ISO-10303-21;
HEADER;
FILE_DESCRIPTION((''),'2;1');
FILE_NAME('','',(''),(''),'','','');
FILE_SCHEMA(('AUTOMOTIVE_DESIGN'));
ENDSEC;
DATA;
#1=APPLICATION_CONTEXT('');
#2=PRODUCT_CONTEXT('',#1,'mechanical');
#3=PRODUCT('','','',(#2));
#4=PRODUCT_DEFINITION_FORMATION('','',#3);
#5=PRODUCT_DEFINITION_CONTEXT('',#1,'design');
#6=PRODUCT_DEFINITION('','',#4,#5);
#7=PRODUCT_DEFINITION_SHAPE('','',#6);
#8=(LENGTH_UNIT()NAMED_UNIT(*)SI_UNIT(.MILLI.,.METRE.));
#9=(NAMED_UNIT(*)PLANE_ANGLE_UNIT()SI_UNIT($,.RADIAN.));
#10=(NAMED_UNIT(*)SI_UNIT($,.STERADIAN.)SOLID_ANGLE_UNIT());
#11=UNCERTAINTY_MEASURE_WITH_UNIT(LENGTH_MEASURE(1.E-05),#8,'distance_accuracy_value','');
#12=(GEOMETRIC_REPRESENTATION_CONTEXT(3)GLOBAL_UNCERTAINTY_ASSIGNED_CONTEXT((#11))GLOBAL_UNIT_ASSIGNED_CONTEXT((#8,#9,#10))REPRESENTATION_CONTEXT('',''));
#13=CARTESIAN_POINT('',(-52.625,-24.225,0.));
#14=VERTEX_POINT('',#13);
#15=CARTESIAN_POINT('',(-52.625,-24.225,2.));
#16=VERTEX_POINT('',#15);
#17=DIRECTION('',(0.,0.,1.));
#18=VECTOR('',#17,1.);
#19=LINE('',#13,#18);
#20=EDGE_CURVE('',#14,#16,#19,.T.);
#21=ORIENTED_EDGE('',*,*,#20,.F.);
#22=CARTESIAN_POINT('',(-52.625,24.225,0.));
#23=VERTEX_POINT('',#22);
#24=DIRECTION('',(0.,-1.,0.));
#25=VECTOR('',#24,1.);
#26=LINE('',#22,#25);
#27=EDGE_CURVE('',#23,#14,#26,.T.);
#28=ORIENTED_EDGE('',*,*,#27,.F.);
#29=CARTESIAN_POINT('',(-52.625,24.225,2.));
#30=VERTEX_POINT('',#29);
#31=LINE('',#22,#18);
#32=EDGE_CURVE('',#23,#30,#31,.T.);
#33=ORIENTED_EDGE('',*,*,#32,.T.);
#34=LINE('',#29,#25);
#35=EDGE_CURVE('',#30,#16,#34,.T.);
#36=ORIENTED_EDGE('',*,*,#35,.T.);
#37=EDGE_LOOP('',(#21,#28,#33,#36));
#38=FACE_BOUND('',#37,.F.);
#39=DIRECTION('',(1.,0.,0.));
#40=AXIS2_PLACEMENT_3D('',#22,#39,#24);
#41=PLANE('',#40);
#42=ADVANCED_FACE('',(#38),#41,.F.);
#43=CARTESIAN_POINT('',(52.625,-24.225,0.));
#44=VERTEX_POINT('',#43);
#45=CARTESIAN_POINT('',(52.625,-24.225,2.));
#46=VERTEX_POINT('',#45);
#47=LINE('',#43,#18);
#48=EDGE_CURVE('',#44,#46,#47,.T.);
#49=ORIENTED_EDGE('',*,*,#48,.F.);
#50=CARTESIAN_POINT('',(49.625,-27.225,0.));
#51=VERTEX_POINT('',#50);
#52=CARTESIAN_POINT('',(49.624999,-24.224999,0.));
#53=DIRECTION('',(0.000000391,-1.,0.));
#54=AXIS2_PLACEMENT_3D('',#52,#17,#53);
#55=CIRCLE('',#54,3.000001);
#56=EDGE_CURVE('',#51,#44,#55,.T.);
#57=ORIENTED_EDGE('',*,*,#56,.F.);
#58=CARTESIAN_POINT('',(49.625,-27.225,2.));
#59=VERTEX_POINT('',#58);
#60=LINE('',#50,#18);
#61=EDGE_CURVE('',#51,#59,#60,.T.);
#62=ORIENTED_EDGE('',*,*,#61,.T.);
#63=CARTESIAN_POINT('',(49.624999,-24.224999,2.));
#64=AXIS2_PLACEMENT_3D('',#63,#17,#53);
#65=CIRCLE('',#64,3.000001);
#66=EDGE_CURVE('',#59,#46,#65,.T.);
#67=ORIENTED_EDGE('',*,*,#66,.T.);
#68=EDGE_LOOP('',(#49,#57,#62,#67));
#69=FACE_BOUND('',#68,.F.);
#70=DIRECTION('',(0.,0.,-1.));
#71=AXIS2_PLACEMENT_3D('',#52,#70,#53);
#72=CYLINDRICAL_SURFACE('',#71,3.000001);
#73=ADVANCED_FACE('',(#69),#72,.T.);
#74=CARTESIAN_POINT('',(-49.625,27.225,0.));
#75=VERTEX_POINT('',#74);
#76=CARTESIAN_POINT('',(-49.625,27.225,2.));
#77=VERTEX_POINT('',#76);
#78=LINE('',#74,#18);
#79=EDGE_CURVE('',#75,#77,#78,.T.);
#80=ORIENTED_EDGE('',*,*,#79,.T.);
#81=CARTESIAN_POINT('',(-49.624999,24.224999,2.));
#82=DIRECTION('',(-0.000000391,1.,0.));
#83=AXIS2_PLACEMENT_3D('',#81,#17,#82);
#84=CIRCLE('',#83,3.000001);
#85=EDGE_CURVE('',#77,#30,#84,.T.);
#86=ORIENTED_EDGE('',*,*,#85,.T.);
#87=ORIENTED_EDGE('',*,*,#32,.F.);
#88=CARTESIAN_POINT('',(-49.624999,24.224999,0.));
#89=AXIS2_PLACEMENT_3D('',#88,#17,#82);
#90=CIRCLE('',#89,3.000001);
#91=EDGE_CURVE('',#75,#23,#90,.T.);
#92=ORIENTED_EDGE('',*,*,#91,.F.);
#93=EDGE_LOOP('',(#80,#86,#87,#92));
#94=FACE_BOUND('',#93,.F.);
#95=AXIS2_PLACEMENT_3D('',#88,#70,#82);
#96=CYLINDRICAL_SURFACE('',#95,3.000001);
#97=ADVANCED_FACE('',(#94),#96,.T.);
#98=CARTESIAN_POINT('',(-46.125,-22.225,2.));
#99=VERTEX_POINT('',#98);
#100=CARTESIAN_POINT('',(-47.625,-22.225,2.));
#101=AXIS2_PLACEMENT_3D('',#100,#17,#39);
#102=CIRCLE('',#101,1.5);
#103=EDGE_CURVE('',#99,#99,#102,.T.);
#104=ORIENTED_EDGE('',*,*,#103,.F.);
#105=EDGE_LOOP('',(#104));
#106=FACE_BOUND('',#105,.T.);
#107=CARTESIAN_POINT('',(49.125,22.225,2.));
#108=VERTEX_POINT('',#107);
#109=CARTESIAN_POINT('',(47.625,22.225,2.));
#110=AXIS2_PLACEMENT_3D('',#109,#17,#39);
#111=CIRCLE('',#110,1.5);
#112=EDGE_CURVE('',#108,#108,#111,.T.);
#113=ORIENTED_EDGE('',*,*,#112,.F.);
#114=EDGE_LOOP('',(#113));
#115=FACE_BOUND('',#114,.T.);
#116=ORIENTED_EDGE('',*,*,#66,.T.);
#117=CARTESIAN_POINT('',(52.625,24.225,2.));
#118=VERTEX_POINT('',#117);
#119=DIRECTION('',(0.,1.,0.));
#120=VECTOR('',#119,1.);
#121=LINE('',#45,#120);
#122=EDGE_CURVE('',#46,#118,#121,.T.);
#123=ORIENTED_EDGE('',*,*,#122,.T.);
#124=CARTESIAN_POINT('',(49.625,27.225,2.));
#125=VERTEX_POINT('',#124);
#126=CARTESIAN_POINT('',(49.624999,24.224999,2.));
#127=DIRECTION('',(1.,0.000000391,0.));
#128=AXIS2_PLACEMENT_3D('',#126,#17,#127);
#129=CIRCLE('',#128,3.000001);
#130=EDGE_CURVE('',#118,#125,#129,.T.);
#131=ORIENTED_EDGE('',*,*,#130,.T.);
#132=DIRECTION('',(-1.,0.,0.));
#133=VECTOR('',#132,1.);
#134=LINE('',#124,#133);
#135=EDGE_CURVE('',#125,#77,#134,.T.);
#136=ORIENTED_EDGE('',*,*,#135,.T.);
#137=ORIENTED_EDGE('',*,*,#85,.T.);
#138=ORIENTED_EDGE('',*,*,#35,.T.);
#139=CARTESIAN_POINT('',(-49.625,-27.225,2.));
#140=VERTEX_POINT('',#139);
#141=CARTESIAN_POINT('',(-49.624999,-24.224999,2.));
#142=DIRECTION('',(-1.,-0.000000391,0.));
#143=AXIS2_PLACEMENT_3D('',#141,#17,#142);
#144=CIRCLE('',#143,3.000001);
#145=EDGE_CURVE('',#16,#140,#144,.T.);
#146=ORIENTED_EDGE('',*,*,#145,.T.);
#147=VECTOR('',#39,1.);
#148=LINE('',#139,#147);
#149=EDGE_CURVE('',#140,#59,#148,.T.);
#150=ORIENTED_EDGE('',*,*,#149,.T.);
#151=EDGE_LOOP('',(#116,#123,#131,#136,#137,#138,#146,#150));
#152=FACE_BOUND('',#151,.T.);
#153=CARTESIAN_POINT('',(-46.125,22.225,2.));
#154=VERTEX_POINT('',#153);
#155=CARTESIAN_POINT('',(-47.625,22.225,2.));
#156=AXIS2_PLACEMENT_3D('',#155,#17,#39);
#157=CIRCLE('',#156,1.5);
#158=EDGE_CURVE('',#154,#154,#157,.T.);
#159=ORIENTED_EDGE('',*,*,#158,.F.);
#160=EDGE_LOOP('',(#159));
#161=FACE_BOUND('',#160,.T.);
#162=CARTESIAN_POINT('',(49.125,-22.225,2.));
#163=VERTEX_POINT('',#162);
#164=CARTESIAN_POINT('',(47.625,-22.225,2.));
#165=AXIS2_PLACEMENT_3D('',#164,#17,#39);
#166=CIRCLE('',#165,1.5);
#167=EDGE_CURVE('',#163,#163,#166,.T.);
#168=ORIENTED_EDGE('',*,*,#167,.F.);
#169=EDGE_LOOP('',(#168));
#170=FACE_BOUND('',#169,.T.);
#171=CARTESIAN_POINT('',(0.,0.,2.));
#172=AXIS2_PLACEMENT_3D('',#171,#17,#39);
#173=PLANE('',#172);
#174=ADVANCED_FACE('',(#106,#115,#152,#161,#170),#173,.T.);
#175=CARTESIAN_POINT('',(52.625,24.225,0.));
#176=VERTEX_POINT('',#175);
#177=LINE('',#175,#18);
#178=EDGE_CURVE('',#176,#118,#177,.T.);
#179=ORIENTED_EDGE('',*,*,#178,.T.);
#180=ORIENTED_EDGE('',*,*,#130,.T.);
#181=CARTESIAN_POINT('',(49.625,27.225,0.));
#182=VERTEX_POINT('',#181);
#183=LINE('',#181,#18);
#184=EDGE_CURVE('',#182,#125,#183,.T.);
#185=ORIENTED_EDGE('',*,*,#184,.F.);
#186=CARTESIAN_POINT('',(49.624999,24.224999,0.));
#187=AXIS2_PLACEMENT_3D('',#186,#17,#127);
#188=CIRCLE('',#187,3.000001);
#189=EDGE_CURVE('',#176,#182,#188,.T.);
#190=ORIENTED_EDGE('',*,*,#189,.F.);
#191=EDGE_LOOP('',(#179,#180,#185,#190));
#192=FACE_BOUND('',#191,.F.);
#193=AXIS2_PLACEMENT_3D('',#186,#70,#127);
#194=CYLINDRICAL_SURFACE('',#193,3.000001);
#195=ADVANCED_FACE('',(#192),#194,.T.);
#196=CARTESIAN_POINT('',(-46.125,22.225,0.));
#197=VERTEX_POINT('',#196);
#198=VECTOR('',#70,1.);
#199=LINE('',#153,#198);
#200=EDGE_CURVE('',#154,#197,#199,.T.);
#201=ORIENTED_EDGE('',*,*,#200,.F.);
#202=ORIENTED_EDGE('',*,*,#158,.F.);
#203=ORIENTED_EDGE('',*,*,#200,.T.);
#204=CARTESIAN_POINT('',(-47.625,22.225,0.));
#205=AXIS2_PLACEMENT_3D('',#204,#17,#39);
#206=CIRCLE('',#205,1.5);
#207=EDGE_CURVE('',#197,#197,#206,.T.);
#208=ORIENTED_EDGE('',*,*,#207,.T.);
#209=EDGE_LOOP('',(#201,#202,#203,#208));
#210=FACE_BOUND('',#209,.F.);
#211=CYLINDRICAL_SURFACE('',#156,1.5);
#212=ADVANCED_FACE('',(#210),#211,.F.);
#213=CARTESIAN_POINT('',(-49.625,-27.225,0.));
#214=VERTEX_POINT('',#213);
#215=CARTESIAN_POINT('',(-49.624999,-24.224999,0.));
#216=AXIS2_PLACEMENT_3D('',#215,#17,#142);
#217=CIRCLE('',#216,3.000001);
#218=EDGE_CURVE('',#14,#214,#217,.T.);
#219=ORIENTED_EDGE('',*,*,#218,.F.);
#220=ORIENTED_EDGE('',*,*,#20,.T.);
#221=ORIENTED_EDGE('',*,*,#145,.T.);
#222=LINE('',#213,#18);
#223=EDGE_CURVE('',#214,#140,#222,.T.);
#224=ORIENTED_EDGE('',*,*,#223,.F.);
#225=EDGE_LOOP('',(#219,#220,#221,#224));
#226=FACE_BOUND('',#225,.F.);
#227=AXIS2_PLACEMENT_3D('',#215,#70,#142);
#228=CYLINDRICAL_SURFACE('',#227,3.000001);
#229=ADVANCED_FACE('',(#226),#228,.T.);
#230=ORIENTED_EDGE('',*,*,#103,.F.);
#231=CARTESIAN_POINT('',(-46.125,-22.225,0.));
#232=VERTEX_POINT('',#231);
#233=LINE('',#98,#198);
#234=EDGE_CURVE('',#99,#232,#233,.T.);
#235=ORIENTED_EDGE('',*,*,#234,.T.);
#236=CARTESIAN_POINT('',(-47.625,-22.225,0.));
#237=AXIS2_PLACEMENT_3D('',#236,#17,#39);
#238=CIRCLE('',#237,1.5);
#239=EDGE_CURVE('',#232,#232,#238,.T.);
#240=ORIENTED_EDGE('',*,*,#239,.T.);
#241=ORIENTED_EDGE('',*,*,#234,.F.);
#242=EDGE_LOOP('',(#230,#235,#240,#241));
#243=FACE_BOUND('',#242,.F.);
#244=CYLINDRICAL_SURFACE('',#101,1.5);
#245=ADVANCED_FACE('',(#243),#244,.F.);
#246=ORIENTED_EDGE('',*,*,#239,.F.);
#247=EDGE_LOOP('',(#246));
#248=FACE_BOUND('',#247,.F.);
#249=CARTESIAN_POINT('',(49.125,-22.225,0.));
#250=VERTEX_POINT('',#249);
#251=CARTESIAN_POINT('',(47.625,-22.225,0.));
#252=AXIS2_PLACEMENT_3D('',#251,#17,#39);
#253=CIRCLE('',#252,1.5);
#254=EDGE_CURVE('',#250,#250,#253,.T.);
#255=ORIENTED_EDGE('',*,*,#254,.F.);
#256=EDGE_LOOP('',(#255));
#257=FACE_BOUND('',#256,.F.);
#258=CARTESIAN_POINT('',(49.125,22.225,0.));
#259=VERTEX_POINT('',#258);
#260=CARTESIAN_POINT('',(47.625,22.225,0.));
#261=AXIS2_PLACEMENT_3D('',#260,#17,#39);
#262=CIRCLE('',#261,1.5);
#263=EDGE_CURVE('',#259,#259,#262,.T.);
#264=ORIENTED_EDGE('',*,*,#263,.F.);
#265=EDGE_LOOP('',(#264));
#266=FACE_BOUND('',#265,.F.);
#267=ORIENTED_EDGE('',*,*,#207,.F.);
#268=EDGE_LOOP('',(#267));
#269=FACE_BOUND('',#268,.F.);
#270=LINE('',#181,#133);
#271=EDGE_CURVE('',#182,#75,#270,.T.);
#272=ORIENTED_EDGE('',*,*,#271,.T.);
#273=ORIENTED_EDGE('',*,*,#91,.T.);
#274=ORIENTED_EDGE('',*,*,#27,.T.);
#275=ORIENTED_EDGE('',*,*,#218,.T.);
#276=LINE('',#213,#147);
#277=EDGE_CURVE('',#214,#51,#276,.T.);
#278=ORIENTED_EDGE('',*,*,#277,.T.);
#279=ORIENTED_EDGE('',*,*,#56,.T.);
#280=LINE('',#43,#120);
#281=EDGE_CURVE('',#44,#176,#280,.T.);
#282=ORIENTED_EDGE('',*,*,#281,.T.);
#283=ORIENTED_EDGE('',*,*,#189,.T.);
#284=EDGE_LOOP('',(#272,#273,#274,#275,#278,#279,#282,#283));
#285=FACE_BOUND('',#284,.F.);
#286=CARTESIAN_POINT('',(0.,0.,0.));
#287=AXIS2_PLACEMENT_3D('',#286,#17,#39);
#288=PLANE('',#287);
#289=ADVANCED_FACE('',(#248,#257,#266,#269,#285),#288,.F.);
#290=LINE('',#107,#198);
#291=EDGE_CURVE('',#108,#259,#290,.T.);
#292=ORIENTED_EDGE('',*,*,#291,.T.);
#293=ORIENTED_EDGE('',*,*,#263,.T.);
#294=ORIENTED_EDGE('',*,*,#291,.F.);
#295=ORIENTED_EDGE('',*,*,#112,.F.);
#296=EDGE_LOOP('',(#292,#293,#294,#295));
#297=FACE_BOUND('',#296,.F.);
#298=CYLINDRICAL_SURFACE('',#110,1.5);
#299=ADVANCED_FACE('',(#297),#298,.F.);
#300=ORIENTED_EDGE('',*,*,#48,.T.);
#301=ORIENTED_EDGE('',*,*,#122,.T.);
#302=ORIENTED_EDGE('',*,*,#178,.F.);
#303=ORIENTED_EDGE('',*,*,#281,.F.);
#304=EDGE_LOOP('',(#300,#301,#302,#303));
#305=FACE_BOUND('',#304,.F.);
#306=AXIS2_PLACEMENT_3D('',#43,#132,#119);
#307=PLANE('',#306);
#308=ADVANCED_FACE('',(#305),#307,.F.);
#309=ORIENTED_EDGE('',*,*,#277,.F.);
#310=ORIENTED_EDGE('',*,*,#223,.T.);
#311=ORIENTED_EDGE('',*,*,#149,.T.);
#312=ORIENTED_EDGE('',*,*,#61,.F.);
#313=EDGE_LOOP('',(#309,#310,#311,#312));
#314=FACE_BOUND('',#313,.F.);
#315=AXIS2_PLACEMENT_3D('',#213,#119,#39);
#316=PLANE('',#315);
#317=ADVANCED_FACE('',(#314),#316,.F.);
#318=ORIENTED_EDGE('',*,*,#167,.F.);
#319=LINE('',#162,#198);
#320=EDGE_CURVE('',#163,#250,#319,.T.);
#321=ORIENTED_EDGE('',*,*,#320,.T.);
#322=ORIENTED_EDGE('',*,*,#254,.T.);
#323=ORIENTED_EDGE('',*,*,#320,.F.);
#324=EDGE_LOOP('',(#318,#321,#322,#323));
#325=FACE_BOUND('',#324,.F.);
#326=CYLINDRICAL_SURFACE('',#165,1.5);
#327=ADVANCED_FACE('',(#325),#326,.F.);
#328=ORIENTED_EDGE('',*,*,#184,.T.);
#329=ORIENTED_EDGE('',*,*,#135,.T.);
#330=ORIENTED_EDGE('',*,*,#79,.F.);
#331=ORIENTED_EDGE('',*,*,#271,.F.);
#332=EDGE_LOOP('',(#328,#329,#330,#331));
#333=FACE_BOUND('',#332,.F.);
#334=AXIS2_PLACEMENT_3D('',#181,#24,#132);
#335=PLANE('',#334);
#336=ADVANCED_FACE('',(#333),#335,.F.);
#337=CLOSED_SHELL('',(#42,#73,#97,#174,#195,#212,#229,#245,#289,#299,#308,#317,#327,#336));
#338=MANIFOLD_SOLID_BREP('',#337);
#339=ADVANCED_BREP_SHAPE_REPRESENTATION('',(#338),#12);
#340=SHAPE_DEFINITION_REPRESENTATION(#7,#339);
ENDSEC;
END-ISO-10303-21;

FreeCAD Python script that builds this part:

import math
import FreeCAD as App
import Part
import Sketcher
Q = App.Units.Quantity

doc = App.newDocument("Part")
body = doc.addObject("PartDesign::Body", "Body")

# Sketch on XY plane
sketch1 = body.newObject("Sketcher::SketchObject", "Sketch")
sketch1.AttachmentSupport = (doc.getObject("XY_Plane"), [""])
sketch1.MapMode = "FlatFace"
sketch1.addGeometry([
    Part.LineSegment(App.Vector(-52.6, 24.2, 0), App.Vector(-52.6, -24.2, 0)),  # 0
    Part.ArcOfCircle(Part.Circle(App.Vector(-49.6, -24.2, 0), App.Vector(0, 0, 1), 3), math.radians(-180), math.radians(-90)),  # 1
    Part.LineSegment(App.Vector(-49.6, -27.2, 0), App.Vector(49.6, -27.2, 0)),  # 2
    Part.ArcOfCircle(Part.Circle(App.Vector(49.6, -24.2, 0), App.Vector(0, 0, 1), 3), math.radians(-90), math.radians(0)),  # 3
    Part.LineSegment(App.Vector(52.6, -24.2, 0), App.Vector(52.6, 24.2, 0)),  # 4
    Part.ArcOfCircle(Part.Circle(App.Vector(49.6, 24.2, 0), App.Vector(0, 0, 1), 3), math.radians(0), math.radians(90)),  # 5
    Part.LineSegment(App.Vector(49.6, 27.2, 0), App.Vector(-49.6, 27.2, 0)),  # 6
    Part.ArcOfCircle(Part.Circle(App.Vector(-49.6, 24.2, 0), App.Vector(0, 0, 1), 3), math.radians(90), math.radians(180)),  # 7
], False)
sketch1.addConstraint([
    Sketcher.Constraint("Tangent", 0, 2, 1, 1),
    Sketcher.Constraint("Tangent", 1, 2, 2, 1),
    Sketcher.Constraint("Tangent", 2, 2, 3, 1),
    Sketcher.Constraint("Tangent", 3, 2, 4, 1),
    Sketcher.Constraint("Tangent", 4, 2, 5, 1),
    Sketcher.Constraint("Tangent", 5, 2, 6, 1),
    Sketcher.Constraint("Tangent", 6, 2, 7, 1),
    Sketcher.Constraint("Tangent", 7, 2, 0, 1),
    Sketcher.Constraint("Vertical", 0),
    Sketcher.Constraint("Horizontal", 2),
    Sketcher.Constraint("Vertical", 4),
    Sketcher.Constraint("Horizontal", 6),
    Sketcher.Constraint("Equal", 1, 3),
    Sketcher.Constraint("Equal", 3, 5),
    Sketcher.Constraint("Equal", 5, 7),
    Sketcher.Constraint("Symmetric", 1, 3, 5, 3, -1, 1),
    Sketcher.Constraint("Radius", 1, Q("3.000001 mm")),
    Sketcher.Constraint("DistanceX", 2, 1, 2, 2, Q("99.25 mm")),
    Sketcher.Constraint("DistanceY", 0, 2, 0, 1, Q("48.45 mm")),
])
pad1 = body.newObject("PartDesign::Pad", "Pad")
pad1.Profile = sketch1
pad1.Length = 2

# Sketch on XY plane
sketch2 = body.newObject("Sketcher::SketchObject", "Sketch001")
sketch2.AttachmentSupport = (doc.getObject("XY_Plane"), [""])
sketch2.MapMode = "FlatFace"
sketch2.AttachmentOffset = App.Placement(App.Vector(0, 0, 2), App.Rotation())
sketch2.addGeometry([
    Part.Circle(App.Vector(-47.6, -22.2, 0), App.Vector(0, 0, 1), 1.5),
    Part.Circle(App.Vector(47.6, -22.2, 0), App.Vector(0, 0, 1), 1.5),
    Part.Circle(App.Vector(47.6, 22.2, 0), App.Vector(0, 0, 1), 1.5),
    Part.Circle(App.Vector(-47.6, 22.2, 0), App.Vector(0, 0, 1), 1.5),
], False)
sketch2.addConstraint([
    Sketcher.Constraint("Equal", 0, 1),
    Sketcher.Constraint("Equal", 1, 2),
    Sketcher.Constraint("Equal", 2, 3),
    Sketcher.Constraint("Symmetric", 0, 3, 2, 3, -1, 1),
    Sketcher.Constraint("Symmetric", 1, 3, 3, 3, -1, 1),
    Sketcher.Constraint("Symmetric", 0, 3, 1, 3, -2),
    Sketcher.Constraint("Diameter", 0, Q("3 mm")),
    Sketcher.Constraint("DistanceX", 0, 3, 1, 3, Q("95.25 mm")),
    Sketcher.Constraint("DistanceY", 1, 3, 2, 3, Q("44.45 mm")),
])
pocket1 = body.newObject("PartDesign::Pocket", "Pocket")
pocket1.Profile = sketch2
pocket1.Type = "ThroughAll"

doc.recompute()
